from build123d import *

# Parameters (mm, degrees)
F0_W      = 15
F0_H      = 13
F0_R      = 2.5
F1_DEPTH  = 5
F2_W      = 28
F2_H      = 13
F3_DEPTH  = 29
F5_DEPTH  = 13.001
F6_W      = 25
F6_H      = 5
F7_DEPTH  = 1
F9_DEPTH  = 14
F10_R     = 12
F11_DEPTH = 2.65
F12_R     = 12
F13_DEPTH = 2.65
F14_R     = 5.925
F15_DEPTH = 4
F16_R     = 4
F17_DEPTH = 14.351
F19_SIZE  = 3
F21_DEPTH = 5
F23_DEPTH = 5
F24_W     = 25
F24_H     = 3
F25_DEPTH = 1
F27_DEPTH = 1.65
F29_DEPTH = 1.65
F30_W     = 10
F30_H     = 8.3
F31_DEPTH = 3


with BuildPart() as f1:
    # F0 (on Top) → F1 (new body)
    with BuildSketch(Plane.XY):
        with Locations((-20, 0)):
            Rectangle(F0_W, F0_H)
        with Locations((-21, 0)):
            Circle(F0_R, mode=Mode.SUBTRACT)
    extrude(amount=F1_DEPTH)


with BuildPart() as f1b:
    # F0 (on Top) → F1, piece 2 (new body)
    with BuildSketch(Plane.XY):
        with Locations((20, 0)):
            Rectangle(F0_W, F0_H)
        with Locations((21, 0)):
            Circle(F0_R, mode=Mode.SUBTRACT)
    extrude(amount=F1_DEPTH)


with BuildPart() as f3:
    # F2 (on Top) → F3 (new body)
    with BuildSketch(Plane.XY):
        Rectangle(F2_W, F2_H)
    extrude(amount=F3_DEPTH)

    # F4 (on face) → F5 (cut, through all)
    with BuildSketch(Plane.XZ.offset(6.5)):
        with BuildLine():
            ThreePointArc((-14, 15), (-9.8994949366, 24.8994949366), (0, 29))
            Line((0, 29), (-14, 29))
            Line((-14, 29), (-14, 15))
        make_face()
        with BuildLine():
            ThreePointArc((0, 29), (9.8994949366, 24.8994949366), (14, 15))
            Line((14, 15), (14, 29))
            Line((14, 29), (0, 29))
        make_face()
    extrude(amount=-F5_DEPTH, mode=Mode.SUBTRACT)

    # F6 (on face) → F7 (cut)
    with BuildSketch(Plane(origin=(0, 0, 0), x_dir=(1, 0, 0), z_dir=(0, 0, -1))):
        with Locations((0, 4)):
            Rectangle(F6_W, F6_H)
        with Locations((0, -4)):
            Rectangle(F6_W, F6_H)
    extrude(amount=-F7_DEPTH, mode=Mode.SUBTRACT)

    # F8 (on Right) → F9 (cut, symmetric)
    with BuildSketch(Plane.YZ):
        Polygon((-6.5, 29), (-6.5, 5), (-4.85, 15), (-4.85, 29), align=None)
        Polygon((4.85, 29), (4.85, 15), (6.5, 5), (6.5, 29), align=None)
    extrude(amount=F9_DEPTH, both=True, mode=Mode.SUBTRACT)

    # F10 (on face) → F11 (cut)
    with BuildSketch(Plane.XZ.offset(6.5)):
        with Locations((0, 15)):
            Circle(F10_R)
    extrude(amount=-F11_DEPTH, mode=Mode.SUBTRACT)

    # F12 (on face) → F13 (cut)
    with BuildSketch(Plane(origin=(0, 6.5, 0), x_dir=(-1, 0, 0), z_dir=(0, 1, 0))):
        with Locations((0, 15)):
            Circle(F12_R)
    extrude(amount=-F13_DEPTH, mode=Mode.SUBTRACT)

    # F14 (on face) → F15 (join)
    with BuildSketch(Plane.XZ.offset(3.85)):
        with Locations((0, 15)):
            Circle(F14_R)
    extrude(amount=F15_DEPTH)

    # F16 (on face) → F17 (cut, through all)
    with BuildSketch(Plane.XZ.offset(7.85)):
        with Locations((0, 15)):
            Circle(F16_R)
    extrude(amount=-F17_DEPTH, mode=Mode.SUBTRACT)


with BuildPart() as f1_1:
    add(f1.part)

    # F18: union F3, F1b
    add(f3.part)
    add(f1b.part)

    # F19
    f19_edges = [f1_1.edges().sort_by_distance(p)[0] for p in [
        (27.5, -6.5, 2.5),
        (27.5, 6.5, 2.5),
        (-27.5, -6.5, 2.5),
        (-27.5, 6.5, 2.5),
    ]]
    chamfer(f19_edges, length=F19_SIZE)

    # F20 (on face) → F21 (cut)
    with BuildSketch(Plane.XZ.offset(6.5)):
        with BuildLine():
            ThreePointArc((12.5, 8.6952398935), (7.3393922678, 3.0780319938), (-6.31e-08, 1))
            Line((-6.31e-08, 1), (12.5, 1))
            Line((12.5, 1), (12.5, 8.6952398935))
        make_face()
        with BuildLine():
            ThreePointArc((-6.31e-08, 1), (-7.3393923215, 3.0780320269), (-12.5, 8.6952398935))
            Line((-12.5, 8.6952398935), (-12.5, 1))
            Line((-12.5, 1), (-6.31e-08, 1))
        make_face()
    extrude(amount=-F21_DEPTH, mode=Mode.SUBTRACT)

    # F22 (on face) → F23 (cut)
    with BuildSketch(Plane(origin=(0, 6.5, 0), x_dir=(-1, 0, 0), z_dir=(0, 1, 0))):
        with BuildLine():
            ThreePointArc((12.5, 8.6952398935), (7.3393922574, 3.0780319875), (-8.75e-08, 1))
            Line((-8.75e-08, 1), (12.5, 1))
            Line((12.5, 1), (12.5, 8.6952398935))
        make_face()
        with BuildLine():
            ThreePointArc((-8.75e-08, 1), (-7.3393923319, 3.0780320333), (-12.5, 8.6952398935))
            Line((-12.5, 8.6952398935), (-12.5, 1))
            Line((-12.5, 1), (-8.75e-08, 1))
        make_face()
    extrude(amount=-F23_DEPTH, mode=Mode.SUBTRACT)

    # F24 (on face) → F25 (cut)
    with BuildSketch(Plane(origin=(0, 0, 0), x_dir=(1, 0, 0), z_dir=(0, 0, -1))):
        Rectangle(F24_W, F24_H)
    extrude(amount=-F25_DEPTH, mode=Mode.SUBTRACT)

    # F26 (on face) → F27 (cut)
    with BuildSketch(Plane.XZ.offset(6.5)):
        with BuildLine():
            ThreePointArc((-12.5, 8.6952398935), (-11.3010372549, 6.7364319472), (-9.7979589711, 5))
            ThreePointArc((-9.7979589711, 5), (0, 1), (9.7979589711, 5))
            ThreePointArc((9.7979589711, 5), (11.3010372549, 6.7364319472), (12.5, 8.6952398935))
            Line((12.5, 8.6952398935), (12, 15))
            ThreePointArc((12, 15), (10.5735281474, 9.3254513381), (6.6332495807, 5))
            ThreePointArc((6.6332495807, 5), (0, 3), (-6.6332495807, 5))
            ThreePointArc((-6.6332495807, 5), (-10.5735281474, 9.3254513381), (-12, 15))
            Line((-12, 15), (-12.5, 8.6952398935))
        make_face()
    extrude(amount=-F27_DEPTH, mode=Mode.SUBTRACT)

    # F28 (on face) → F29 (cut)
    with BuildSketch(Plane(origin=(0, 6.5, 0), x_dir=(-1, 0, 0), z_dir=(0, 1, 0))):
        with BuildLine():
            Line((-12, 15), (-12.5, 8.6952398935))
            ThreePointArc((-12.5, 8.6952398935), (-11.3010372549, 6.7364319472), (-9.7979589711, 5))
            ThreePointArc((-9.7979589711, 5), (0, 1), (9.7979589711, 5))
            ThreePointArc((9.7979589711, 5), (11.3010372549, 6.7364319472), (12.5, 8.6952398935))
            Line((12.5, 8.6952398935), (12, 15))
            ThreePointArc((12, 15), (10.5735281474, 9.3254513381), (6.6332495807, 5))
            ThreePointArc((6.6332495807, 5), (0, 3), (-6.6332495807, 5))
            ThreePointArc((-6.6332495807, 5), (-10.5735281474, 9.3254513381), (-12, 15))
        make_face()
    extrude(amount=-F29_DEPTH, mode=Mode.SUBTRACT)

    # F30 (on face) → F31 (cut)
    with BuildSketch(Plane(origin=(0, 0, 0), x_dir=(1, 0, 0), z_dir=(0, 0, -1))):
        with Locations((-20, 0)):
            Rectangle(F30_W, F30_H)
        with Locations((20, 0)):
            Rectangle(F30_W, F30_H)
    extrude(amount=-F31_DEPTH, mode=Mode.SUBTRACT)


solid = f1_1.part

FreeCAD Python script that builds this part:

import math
import FreeCAD as App
import Part
import Sketcher
from FreeCAD import Vector
Q = App.Units.Quantity


def edges_at(feature, points):
    """Names of the edges that pass closest to the given points."""
    edges = feature.Shape.Edges
    near = lambda p: min(range(len(edges)), key=lambda i: edges[i].distToShape(Part.Vertex(*p))[0])
    return sorted({f"Edge{near(p) + 1}" for p in points})


def add_polygon(sketch, points):
    """Adds a closed chain of lines whose ends are joined by coincident constraints."""
    first, n = sketch.GeometryCount, len(points)
    for a, b in zip(points, points[1:] + points[:1]):
        sketch.addGeometry(Part.LineSegment(App.Vector(*a, 0), App.Vector(*b, 0)), False)
    for i in range(n):
        sketch.addConstraint(Sketcher.Constraint("Coincident", first + i, 2, first + (i + 1) % n, 1))

doc = App.newDocument("Part")
body = doc.addObject("PartDesign::Body", "Body")

sketch1 = doc.addObject("Sketcher::SketchObject", "Sketch")
body.addObject(sketch1)
sketch1.AttachmentSupport = (doc.XY_Plane, [""])
sketch1.MapMode = "FlatFace"
add_polygon(sketch1, [(-27.5, 6.5), (-27.5, -6.5), (-12.5, -6.5), (-12.5, 6.5)])
sketch1.addGeometry(Part.Circle(Vector(-21, 0, 0), Vector(0, 0, 1), 2.5), False)
sketch1.addConstraint([
    Sketcher.Constraint("Vertical", 0),
    Sketcher.Constraint("Horizontal", 1),
    Sketcher.Constraint("Vertical", 2),
    Sketcher.Constraint("Horizontal", 3),
    Sketcher.Constraint("PointOnObject", 4, 3, -1),
    Sketcher.Constraint("Diameter", 4, Q("5 mm")),
    Sketcher.Constraint("DistanceX", 1, 1, 1, 2, Q("15 mm")),
    Sketcher.Constraint("DistanceY", 0, 2, 0, 1, Q("13 mm")),
    Sketcher.Constraint("DistanceX", 4, 3, -1, 1, Q("21 mm")),
    Sketcher.Constraint("DistanceX", 0, 2, -1, 1, Q("27.5 mm")),
    Sketcher.Constraint("DistanceY", 0, 2, -1, 1, Q("6.5 mm")),
])
pad1 = doc.addObject("PartDesign::Pad", "Pad")
body.addObject(pad1)
pad1.Profile = sketch1
pad1.Length = 5
body2 = doc.addObject("PartDesign::Body", "Body001")

sketch2 = doc.addObject("Sketcher::SketchObject", "Sketch001")
body2.addObject(sketch2)
sketch2.AttachmentSupport = (doc.getObject("XY_Plane001"), [""])
sketch2.MapMode = "FlatFace"
add_polygon(sketch2, [(12.5, 6.5), (12.5, -6.5), (27.5, -6.5), (27.5, 6.5)])
sketch2.addGeometry(Part.Circle(Vector(21, 0, 0), Vector(0, 0, 1), 2.5), False)
sketch2.addConstraint([
    Sketcher.Constraint("Vertical", 0),
    Sketcher.Constraint("Horizontal", 1),
    Sketcher.Constraint("Vertical", 2),
    Sketcher.Constraint("Horizontal", 3),
    Sketcher.Constraint("PointOnObject", 4, 3, -1),
    Sketcher.Constraint("Diameter", 4, Q("5 mm")),
    Sketcher.Constraint("DistanceX", 1, 1, 1, 2, Q("15 mm")),
    Sketcher.Constraint("DistanceY", 0, 2, 0, 1, Q("13 mm")),
    Sketcher.Constraint("DistanceX", -1, 1, 4, 3, Q("21 mm")),
    Sketcher.Constraint("DistanceX", -1, 1, 0, 2, Q("12.5 mm")),
    Sketcher.Constraint("DistanceY", 0, 2, -1, 1, Q("6.5 mm")),
])
pad2 = doc.addObject("PartDesign::Pad", "Pad001")
body2.addObject(pad2)
pad2.Profile = sketch2
pad2.Length = 5
body3 = doc.addObject("PartDesign::Body", "Body002")

sketch3 = doc.addObject("Sketcher::SketchObject", "Sketch002")
body3.addObject(sketch3)
sketch3.AttachmentSupport = (doc.getObject("XY_Plane002"), [""])
sketch3.MapMode = "FlatFace"
add_polygon(sketch3, [(-14, 6), (-14, -6), (14, -6), (14, 6)])
sketch3.addConstraint([
    Sketcher.Constraint("Vertical", 0),
    Sketcher.Constraint("Horizontal", 1),
    Sketcher.Constraint("Vertical", 2),
    Sketcher.Constraint("Horizontal", 3),
    Sketcher.Constraint("Symmetric", 0, 2, 2, 2, -1, 1),
    Sketcher.Constraint("DistanceX", 1, 1, 1, 2, Q("28 mm")),
    Sketcher.Constraint("DistanceY", 0, 2, 0, 1, Q("13 mm")),
])
pad3 = doc.addObject("PartDesign::Pad", "Pad002")
body3.addObject(pad3)
pad3.Profile = sketch3
pad3.Length = 29

sketch4 = doc.addObject("Sketcher::SketchObject", "Sketch003")
body3.addObject(sketch4)
sketch4.AttachmentSupport = (doc.getObject("XZ_Plane002"), [""])
sketch4.MapMode = "FlatFace"
sketch4.AttachmentOffset = App.Placement(Vector(0, 0, 6.5), App.Rotation())
sketch4.addGeometry([
    Part.ArcOfCircle(Part.Circle(Vector(0, 15, 0), Vector(0, 0, 1), 14), math.radians(90), math.radians(180)),
    Part.LineSegment(Vector(0, 29, 0), Vector(-14, 29, 0)),
    Part.LineSegment(Vector(-14, 29, 0), Vector(-14, 15, 0)),
    Part.ArcOfCircle(Part.Circle(Vector(0, 15, 0), Vector(0, 0, 1), 14), math.radians(0), math.radians(90)),
    Part.LineSegment(Vector(14, 15, 0), Vector(14, 29, 0)),
    Part.LineSegment(Vector(14, 29, 0), Vector(0, 29, 0)),
], False)
sketch4.addConstraint([
    Sketcher.Constraint("Tangent", 0, 1, 1, 1),
    Sketcher.Constraint("Coincident", 1, 2, 2, 1),
    Sketcher.Constraint("Tangent", 2, 2, 0, 2),
    Sketcher.Constraint("Tangent", 3, 1, 4, 1),
    Sketcher.Constraint("Coincident", 4, 2, 5, 1),
    Sketcher.Constraint("Tangent", 5, 2, 3, 2),
    Sketcher.Constraint("Horizontal", 1),
    Sketcher.Constraint("Vertical", 2),
    Sketcher.Constraint("Vertical", 4),
    Sketcher.Constraint("Horizontal", 5),
    Sketcher.Constraint("Coincident", 3, 3, 0, 3),
    Sketcher.Constraint("Equal", 0, 3),
    Sketcher.Constraint("PointOnObject", 0, 3, -2),
    Sketcher.Constraint("Radius", 0, Q("14 mm")),
    Sketcher.Constraint("DistanceY", -1, 1, 0, 3, Q("15 mm")),
])
pocket1 = doc.addObject("PartDesign::Pocket", "Pocket")
body3.addObject(pocket1)
pocket1.Profile = sketch4
pocket1.Type = "ThroughAll"

sketch5 = doc.addObject("Sketcher::SketchObject", "Sketch004")
body3.addObject(sketch5)
sketch5.AttachmentSupport = (doc.getObject("XY_Plane002"), [""])
sketch5.MapMode = "FlatFace"
add_polygon(sketch5, [(-12, -6), (-12, -2), (12, -2), (12, -6)])
add_polygon(sketch5, [(-12, 2), (-12, 6), (12, 6), (12, 2)])
sketch5.addConstraint([
    Sketcher.Constraint("Vertical", 0),
    Sketcher.Constraint("Horizontal", 1),
    Sketcher.Constraint("Vertical", 2),
    Sketcher.Constraint("Horizontal", 3),
    Sketcher.Constraint("Vertical", 4),
    Sketcher.Constraint("Horizontal", 5),
    Sketcher.Constraint("Vertical", 6),
    Sketcher.Constraint("Horizontal", 7),
    Sketcher.Constraint("Symmetric", 2, 2, 4, 2, -1, 1),
    Sketcher.Constraint("Symmetric", 0, 2, 6, 2, -1, 1),
    Sketcher.Constraint("Vertical", 3, 2, 4, 2),
    Sketcher.Constraint("DistanceX", 1, 1, 1, 2, Q("25 mm")),
    Sketcher.Constraint("DistanceY", 0, 1, 0, 2, Q("5 mm")),
    Sketcher.Constraint("DistanceY", 0, 2, 4, 2, Q("8 mm")),
])
pocket2 = doc.addObject("PartDesign::Pocket", "Pocket001")
body3.addObject(pocket2)
pocket2.Profile = sketch5
pocket2.Length = 1
pocket2.Reversed = True

sketch6 = doc.addObject("Sketcher::SketchObject", "Sketch005")
body3.addObject(sketch6)
sketch6.AttachmentSupport = (doc.getObject("YZ_Plane002"), [""])
sketch6.MapMode = "FlatFace"
add_polygon(sketch6, [(-6.5, 29), (-6.5, 5), (-4.8, 15), (-4.8, 29)])
add_polygon(sketch6, [(4.8, 29), (4.8, 15), (6.5, 5), (6.5, 29)])
sketch6.addConstraint([
    Sketcher.Constraint("Vertical", 0),
    Sketcher.Constraint("Vertical", 2),
    Sketcher.Constraint("Horizontal", 3),
    Sketcher.Constraint("Vertical", 4),
    Sketcher.Constraint("Vertical", 6),
    Sketcher.Constraint("Horizontal", 7),
    Sketcher.Constraint("Symmetric", 1, 2, 4, 2, -2),
    Sketcher.Constraint("Symmetric", 0, 2, 5, 2, -2),
    Sketcher.Constraint("Horizontal", 3, 2, 6, 2),
    Sketcher.Constraint("DistanceY", 0, 2, 0, 1, Q("24 mm")),
    Sketcher.Constraint("DistanceY", 2, 1, 2, 2, Q("14 mm")),
    Sketcher.Constraint("DistanceY", -1, 1, 0, 2, Q("5 mm")),
    Sketcher.Constraint("DistanceX", 0, 2, 5, 2, Q("13 mm")),
    Sketcher.Constraint("DistanceX", 3, 2, 3, 1, Q("1.65 mm")),
])
pocket3 = doc.addObject("PartDesign::Pocket", "Pocket002")
body3.addObject(pocket3)
pocket3.Profile = sketch6
pocket3.Length = 28
pocket3.Midplane = True

sketch7 = doc.addObject("Sketcher::SketchObject", "Sketch006")
body3.addObject(sketch7)
sketch7.AttachmentSupport = (doc.getObject("XZ_Plane002"), [""])
sketch7.MapMode = "FlatFace"
sketch7.AttachmentOffset = App.Placement(Vector(0, 0, 6.5), App.Rotation())
sketch7.addGeometry(Part.Circle(Vector(0, 15, 0), Vector(0, 0, 1), 12), False)
sketch7.addConstraint([
    Sketcher.Constraint("PointOnObject", 0, 3, -2),
    Sketcher.Constraint("Diameter", 0, Q("24 mm")),
    Sketcher.Constraint("DistanceY", -1, 1, 0, 3, Q("15 mm")),
])
pocket4 = doc.addObject("PartDesign::Pocket", "Pocket003")
body3.addObject(pocket4)
pocket4.Profile = sketch7
pocket4.Length = 2.65

sketch8 = doc.addObject("Sketcher::SketchObject", "Sketch007")
body3.addObject(sketch8)
sketch8.AttachmentSupport = (doc.getObject("XZ_Plane002"), [""])
sketch8.MapMode = "FlatFace"
sketch8.AttachmentOffset = App.Placement(Vector(0, 0, -6.5), App.Rotation())
sketch8.addGeometry(Part.Circle(Vector(0, 15, 0), Vector(0, 0, 1), 12), False)
sketch8.addConstraint([
    Sketcher.Constraint("PointOnObject", 0, 3, -2),
    Sketcher.Constraint("Diameter", 0, Q("24 mm")),
    Sketcher.Constraint("DistanceY", -1, 1, 0, 3, Q("15 mm")),
])
pocket5 = doc.addObject("PartDesign::Pocket", "Pocket004")
body3.addObject(pocket5)
pocket5.Profile = sketch8
pocket5.Length = 2.65
pocket5.Reversed = True

sketch9 = doc.addObject("Sketcher::SketchObject", "Sketch008")
body3.addObject(sketch9)
sketch9.AttachmentSupport = (doc.getObject("XZ_Plane002"), [""])
sketch9.MapMode = "FlatFace"
sketch9.AttachmentOffset = App.Placement(Vector(0, 0, 3.85), App.Rotation())
sketch9.addGeometry(Part.Circle(Vector(0, 15, 0), Vector(0, 0, 1), 6), False)
sketch9.addConstraint([
    Sketcher.Constraint("PointOnObject", 0, 3, -2),
    Sketcher.Constraint("Diameter", 0, Q("11.85 mm")),
    Sketcher.Constraint("DistanceY", -1, 1, 0, 3, Q("15 mm")),
])
pad4 = doc.addObject("PartDesign::Pad", "Pad003")
body3.addObject(pad4)
pad4.Profile = sketch9
pad4.Length = 4

sketch10 = doc.addObject("Sketcher::SketchObject", "Sketch009")
body3.addObject(sketch10)
sketch10.AttachmentSupport = (doc.getObject("XZ_Plane002"), [""])
sketch10.MapMode = "FlatFace"
sketch10.AttachmentOffset = App.Placement(Vector(0, 0, 7.85), App.Rotation())
sketch10.addGeometry(Part.Circle(Vector(0, 15, 0), Vector(0, 0, 1), 4), False)
sketch10.addConstraint([
    Sketcher.Constraint("PointOnObject", 0, 3, -2),
    Sketcher.Constraint("Diameter", 0, Q("8 mm")),
    Sketcher.Constraint("DistanceY", -1, 1, 0, 3, Q("15 mm")),
])
pocket6 = doc.addObject("PartDesign::Pocket", "Pocket005")
body3.addObject(pocket6)
pocket6.Profile = sketch10
pocket6.Type = "ThroughAll"
doc.recompute()

boolean = doc.addObject("PartDesign::Boolean", "Boolean")
body.addObject(boolean)
boolean.Type = "Fuse"
boolean.addObjects([body3])
doc.recompute()

boolean2 = doc.addObject("PartDesign::Boolean", "Boolean001")
body.addObject(boolean2)
boolean2.Type = "Fuse"
boolean2.addObjects([body2])
doc.recompute()

chamfer = doc.addObject("PartDesign::Chamfer", "Chamfer")
body.addObject(chamfer)
chamfer.Base = (boolean2, edges_at(boolean2, [
    (27.5, -6.5, 2.5),
    (27.5, 6.5, 2.5),
    (-27.5, -6.5, 2.5),
    (-27.5, 6.5, 2.5),
]))
chamfer.Size = 3

sketch11 = doc.addObject("Sketcher::SketchObject", "Sketch010")
body.addObject(sketch11)
sketch11.AttachmentSupport = (doc.XZ_Plane, [""])
sketch11.MapMode = "FlatFace"
sketch11.AttachmentOffset = App.Placement(Vector(0, 0, 6.5), App.Rotation())
sketch11.addGeometry([
    Part.ArcOfCircle(Part.Circle(Vector(0, 15, 0), Vector(0, 0, 1), 14), math.radians(-90), math.radians(-27)),
    Part.LineSegment(Vector(0, 1, 0), Vector(12, 1, 0)),
    Part.LineSegment(Vector(12, 1, 0), Vector(12, 9, 0)),
    Part.ArcOfCircle(Part.Circle(Vector(0, 15, 0), Vector(0, 0, 1), 14), math.radians(-153), math.radians(-90)),
    Part.LineSegment(Vector(-12, 9, 0), Vector(-12, 1, 0)),
    Part.LineSegment(Vector(-12, 1, 0), Vector(0, 1, 0)),
], False)
sketch11.addConstraint([
    Sketcher.Constraint("Tangent", 0, 1, 1, 1),
    Sketcher.Constraint("Coincident", 1, 2, 2, 1),
    Sketcher.Constraint("Coincident", 2, 2, 0, 2),
    Sketcher.Constraint("Coincident", 3, 1, 4, 1),
    Sketcher.Constraint("Coincident", 4, 2, 5, 1),
    Sketcher.Constraint("Tangent", 5, 2, 3, 2),
    Sketcher.Constraint("Horizontal", 1),
    Sketcher.Constraint("Vertical", 2),
    Sketcher.Constraint("Vertical", 4),
    Sketcher.Constraint("Horizontal", 5),
    Sketcher.Constraint("Coincident", 3, 3, 0, 3),
    Sketcher.Constraint("Equal", 0, 3),
    Sketcher.Constraint("Symmetric", 2, 2, 3, 1, -2),
    Sketcher.Constraint("Radius", 0, Q("14 mm")),
    Sketcher.Constraint("DistanceX", 1, 1, 1, 2, Q("12.5 mm")),
    Sketcher.Constraint("DistanceY", -1, 1, 0, 3, Q("15 mm")),
])
pocket7 = doc.addObject("PartDesign::Pocket", "Pocket006")
body.addObject(pocket7)
pocket7.Profile = sketch11
pocket7.Length = 5

sketch12 = doc.addObject("Sketcher::SketchObject", "Sketch011")
body.addObject(sketch12)
sketch12.AttachmentSupport = (doc.XZ_Plane, [""])
sketch12.MapMode = "FlatFace"
sketch12.AttachmentOffset = App.Placement(Vector(0, 0, -6.5), App.Rotation())
sketch12.addGeometry([
    Part.ArcOfCircle(Part.Circle(Vector(0, 15, 0), Vector(0, 0, 1), 14), math.radians(-153), math.radians(-90)),
    Part.LineSegment(Vector(0, 1, 0), Vector(-12, 1, 0)),
    Part.LineSegment(Vector(-12, 1, 0), Vector(-12, 9, 0)),
    Part.ArcOfCircle(Part.Circle(Vector(0, 15, 0), Vector(0, 0, 1), 14), math.radians(-90), math.radians(-27)),
    Part.LineSegment(Vector(12, 9, 0), Vector(12, 1, 0)),
    Part.LineSegment(Vector(12, 1, 0), Vector(0, 1, 0)),
], False)
sketch12.addConstraint([
    Sketcher.Constraint("Tangent", 0, 2, 1, 1),
    Sketcher.Constraint("Coincident", 1, 2, 2, 1),
    Sketcher.Constraint("Coincident", 2, 2, 0, 1),
    Sketcher.Constraint("Coincident", 3, 2, 4, 1),
    Sketcher.Constraint("Coincident", 4, 2, 5, 1),
    Sketcher.Constraint("Tangent", 5, 2, 3, 1),
    Sketcher.Constraint("Horizontal", 1),
    Sketcher.Constraint("Vertical", 2),
    Sketcher.Constraint("Vertical", 4),
    Sketcher.Constraint("Horizontal", 5),
    Sketcher.Constraint("Coincident", 3, 3, 0, 3),
    Sketcher.Constraint("Equal", 0, 3),
    Sketcher.Constraint("Symmetric", 2, 2, 3, 2, -2),
    Sketcher.Constraint("Radius", 0, Q("14 mm")),
    Sketcher.Constraint("DistanceX", 1, 2, 1, 1, Q("12.5 mm")),
    Sketcher.Constraint("DistanceY", -1, 1, 0, 3, Q("15 mm")),
])
pocket8 = doc.addObject("PartDesign::Pocket", "Pocket007")
body.addObject(pocket8)
pocket8.Profile = sketch12
pocket8.Length = 5
pocket8.Reversed = True

sketch13 = doc.addObject("Sketcher::SketchObject", "Sketch012")
body.addObject(sketch13)
sketch13.AttachmentSupport = (doc.XY_Plane, [""])
sketch13.MapMode = "FlatFace"
add_polygon(sketch13, [(-12.5, -1.5), (-12.5, 1.5), (12.5, 1.5), (12.5, -1.5)])
sketch13.addConstraint([
    Sketcher.Constraint("Vertical", 0),
    Sketcher.Constraint("Horizontal", 1),
    Sketcher.Constraint("Vertical", 2),
    Sketcher.Constraint("Horizontal", 3),
    Sketcher.Constraint("Symmetric", 0, 2, 2, 2, -1, 1),
    Sketcher.Constraint("DistanceX", 1, 1, 1, 2, Q("25 mm")),
    Sketcher.Constraint("DistanceY", 0, 1, 0, 2, Q("3 mm")),
])
pocket9 = doc.addObject("PartDesign::Pocket", "Pocket008")
body.addObject(pocket9)
pocket9.Profile = sketch13
pocket9.Length = 1
pocket9.Reversed = True

sketch14 = doc.addObject("Sketcher::SketchObject", "Sketch013")
body.addObject(sketch14)
sketch14.AttachmentSupport = (doc.XZ_Plane, [""])
sketch14.MapMode = "FlatFace"
sketch14.AttachmentOffset = App.Placement(Vector(0, 0, 6.5), App.Rotation())
sketch14.addGeometry([
    Part.ArcOfCircle(Part.Circle(Vector(0, 15, 0), Vector(0, 0, 1), 14), math.radians(-153.23), math.radians(-134.42)),
    Part.ArcOfCircle(Part.Circle(Vector(0, 15, 0), Vector(0, 0, 1), 14), math.radians(-134), math.radians(-46)),
    Part.ArcOfCircle(Part.Circle(Vector(0, 15, 0), Vector(0, 0, 1), 14), math.radians(-45.58), math.radians(-26.77)),
    Part.LineSegment(Vector(12.5, 8.7, 0), Vector(12, 15, 0)),
    Part.ArcOfCircle(Part.Circle(Vector(0, 15, 0), Vector(0, 0, 1), 12), math.radians(-56), math.radians(0)),
    Part.ArcOfCircle(Part.Circle(Vector(0, 15, 0), Vector(0, 0, 1), 12), math.radians(-124), math.radians(-56)),
    Part.ArcOfCircle(Part.Circle(Vector(0, 15, 0), Vector(0, 0, 1), 12), math.radians(180), math.radians(236)),
    Part.LineSegment(Vector(-12, 15, 0), Vector(-12.5, 8.7, 0)),
], False)
sketch14.addConstraint([
    Sketcher.Constraint("Tangent", 0, 2, 1, 1),
    Sketcher.Constraint("Tangent", 1, 2, 2, 1),
    Sketcher.Constraint("Coincident", 2, 2, 3, 1),
    Sketcher.Constraint("Coincident", 3, 2, 4, 2),
    Sketcher.Constraint("Tangent", 4, 1, 5, 2),
    Sketcher.Constraint("Tangent", 5, 1, 6, 2),
    Sketcher.Constraint("Coincident", 6, 1, 7, 1),
    Sketcher.Constraint("Coincident", 7, 2, 0, 1),
    Sketcher.Constraint("Coincident", 2, 3, 0, 3),
    Sketcher.Constraint("Coincident", 4, 3, 0, 3),
    Sketcher.Constraint("Coincident", 6, 3, 0, 3),
    Sketcher.Constraint("Symmetric", 0, 2, 1, 2, -2),
    Sketcher.Constraint("Horizontal", 6, 3, 3, 2),
    Sketcher.Constraint("Horizontal", 1, 2, 4, 1),
    Sketcher.Constraint("Horizontal", 4, 1, 5, 1),
    Sketcher.Constraint("Horizontal", 3, 2, 6, 1),
    Sketcher.Constraint("Horizontal", 2, 2, 7, 2),
    Sketcher.Constraint("Radius", 0, Q("14 mm")),
    Sketcher.Constraint("Radius", 4, Q("12 mm")),
    Sketcher.Constraint("DistanceY", -1, 1, 0, 3, Q("15 mm")),
    Sketcher.Constraint("DistanceY", -1, 1, 0, 2, Q("5 mm")),
    Sketcher.Constraint("DistanceX", -1, 1, 2, 2, Q("12.5 mm")),
])
pocket10 = doc.addObject("PartDesign::Pocket", "Pocket009")
body.addObject(pocket10)
pocket10.Profile = sketch14
pocket10.Length = 1.65

sketch15 = doc.addObject("Sketcher::SketchObject", "Sketch014")
body.addObject(sketch15)
sketch15.AttachmentSupport = (doc.XZ_Plane, [""])
sketch15.MapMode = "FlatFace"
sketch15.AttachmentOffset = App.Placement(Vector(0, 0, -6.5), App.Rotation())
sketch15.addGeometry([
    Part.LineSegment(Vector(12, 15, 0), Vector(12.5, 8.7, 0)),
    Part.ArcOfCircle(Part.Circle(Vector(0, 15, 0), Vector(0, 0, 1), 14), math.radians(-45.58), math.radians(-26.77)),
    Part.ArcOfCircle(Part.Circle(Vector(0, 15, 0), Vector(0, 0, 1), 14), math.radians(-134), math.radians(-46)),
    Part.ArcOfCircle(Part.Circle(Vector(0, 15, 0), Vector(0, 0, 1), 14), math.radians(-153.23), math.radians(-134.42)),
    Part.LineSegment(Vector(-12.5, 8.7, 0), Vector(-12, 15, 0)),
    Part.ArcOfCircle(Part.Circle(Vector(0, 15, 0), Vector(0, 0, 1), 12), math.radians(180), math.radians(236)),
    Part.ArcOfCircle(Part.Circle(Vector(0, 15, 0), Vector(0, 0, 1), 12), math.radians(-124), math.radians(-56)),
    Part.ArcOfCircle(Part.Circle(Vector(0, 15, 0), Vector(0, 0, 1), 12), math.radians(-56), math.radians(0)),
], False)
sketch15.addConstraint([
    Sketcher.Constraint("Coincident", 0, 2, 1, 2),
    Sketcher.Constraint("Tangent", 1, 1, 2, 2),
    Sketcher.Constraint("Tangent", 2, 1, 3, 2),
    Sketcher.Constraint("Coincident", 3, 1, 4, 1),
    Sketcher.Constraint("Coincident", 4, 2, 5, 1),
    Sketcher.Constraint("Tangent", 5, 2, 6, 1),
    Sketcher.Constraint("Tangent", 6, 2, 7, 1),
    Sketcher.Constraint("Coincident", 7, 2, 0, 1),
    Sketcher.Constraint("Coincident", 3, 3, 1, 3),
    Sketcher.Constraint("Coincident", 5, 3, 1, 3),
    Sketcher.Constraint("Coincident", 7, 3, 1, 3),
    Sketcher.Constraint("Symmetric", 1, 1, 2, 1, -2),
    Sketcher.Constraint("Horizontal", 0, 2, 3, 1),
    Sketcher.Constraint("Horizontal", 7, 3, 4, 2),
    Sketcher.Constraint("Horizontal", 2, 1, 5, 2),
    Sketcher.Constraint("Horizontal", 5, 2, 6, 2),
    Sketcher.Constraint("Horizontal", 4, 2, 7, 2),
    Sketcher.Constraint("Radius", 1, Q("14 mm")),
    Sketcher.Constraint("Radius", 5, Q("12 mm")),
    Sketcher.Constraint("DistanceY", -1, 1, 1, 3, Q("15 mm")),
    Sketcher.Constraint("DistanceY", -1, 1, 1, 1, Q("5 mm")),
    Sketcher.Constraint("DistanceX", -1, 1, 0, 2, Q("12.5 mm")),
])
pocket11 = doc.addObject("PartDesign::Pocket", "Pocket010")
body.addObject(pocket11)
pocket11.Profile = sketch15
pocket11.Length = 1.65
pocket11.Reversed = True

sketch16 = doc.addObject("Sketcher::SketchObject", "Sketch015")
body.addObject(sketch16)
sketch16.AttachmentSupport = (doc.XY_Plane, [""])
sketch16.MapMode = "FlatFace"
add_polygon(sketch16, [(-25, -4), (-25, 4), (-15, 4), (-15, -4)])
add_polygon(sketch16, [(15, -4), (15, 4), (25, 4), (25, -4)])
sketch16.addConstraint([
    Sketcher.Constraint("Vertical", 0),
    Sketcher.Constraint("Horizontal", 1),
    Sketcher.Constraint("Vertical", 2),
    Sketcher.Constraint("Horizontal", 3),
    Sketcher.Constraint("Vertical", 4),
    Sketcher.Constraint("Horizontal", 5),
    Sketcher.Constraint("Vertical", 6),
    Sketcher.Constraint("Horizontal", 7),
    Sketcher.Constraint("Symmetric", 2, 2, 4, 2, -1, 1),
    Sketcher.Constraint("Symmetric", 0, 2, 6, 2, -1, 1),
    Sketcher.Constraint("Horizontal", 1, 2, 4, 2),
    Sketcher.Constraint("DistanceX", 1, 1, 1, 2, Q("10 mm")),
    Sketcher.Constraint("DistanceY", 0, 1, 0, 2, Q("8.3 mm")),
    Sketcher.Constraint("DistanceX", 0, 2, -1, 1, Q("25 mm")),
])
pocket12 = doc.addObject("PartDesign::Pocket", "Pocket011")
body.addObject(pocket12)
pocket12.Profile = sketch16
pocket12.Length = 3
pocket12.Reversed = True

doc.recompute()
